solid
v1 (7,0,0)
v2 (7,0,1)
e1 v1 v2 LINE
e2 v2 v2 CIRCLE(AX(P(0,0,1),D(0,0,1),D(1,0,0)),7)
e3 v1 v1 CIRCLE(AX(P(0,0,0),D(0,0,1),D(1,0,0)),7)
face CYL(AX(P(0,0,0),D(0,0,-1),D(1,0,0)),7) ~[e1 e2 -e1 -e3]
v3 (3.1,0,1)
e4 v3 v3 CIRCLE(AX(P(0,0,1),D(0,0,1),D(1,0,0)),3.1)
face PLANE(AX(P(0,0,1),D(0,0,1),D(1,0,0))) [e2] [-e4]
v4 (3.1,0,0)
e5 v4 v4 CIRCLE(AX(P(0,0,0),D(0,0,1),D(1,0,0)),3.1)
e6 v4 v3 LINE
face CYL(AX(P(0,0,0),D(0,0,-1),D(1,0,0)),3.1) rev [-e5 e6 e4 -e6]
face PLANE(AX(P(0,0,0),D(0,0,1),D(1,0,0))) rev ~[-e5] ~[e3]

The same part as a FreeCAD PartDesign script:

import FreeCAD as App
import Part
import Sketcher
Q = App.Units.Quantity

doc = App.newDocument("Part")
body = doc.addObject("PartDesign::Body", "Body")

sketch1 = body.newObject("Sketcher::SketchObject", "Sketch")
sketch1.AttachmentSupport = (doc.getObject("XY_Plane"), [""])
sketch1.MapMode = "FlatFace"
sketch1.addGeometry([
    Part.Circle(App.Vector(0, 0, 0), App.Vector(0, 0, 1), 7),
    Part.Circle(App.Vector(0, 0, 0), App.Vector(0, 0, 1), 3.1),
], False)
sketch1.addConstraint([
    Sketcher.Constraint("Coincident", 0, 3, -1, 1),
    Sketcher.Constraint("Coincident", 1, 3, -1, 1),
    Sketcher.Constraint("Diameter", 0, Q("14 mm")),
    Sketcher.Constraint("Diameter", 1, Q("6.2 mm")),
])
pad1 = body.newObject("PartDesign::Pad", "Pad")
pad1.Profile = sketch1
pad1.Length = 1

doc.recompute()
